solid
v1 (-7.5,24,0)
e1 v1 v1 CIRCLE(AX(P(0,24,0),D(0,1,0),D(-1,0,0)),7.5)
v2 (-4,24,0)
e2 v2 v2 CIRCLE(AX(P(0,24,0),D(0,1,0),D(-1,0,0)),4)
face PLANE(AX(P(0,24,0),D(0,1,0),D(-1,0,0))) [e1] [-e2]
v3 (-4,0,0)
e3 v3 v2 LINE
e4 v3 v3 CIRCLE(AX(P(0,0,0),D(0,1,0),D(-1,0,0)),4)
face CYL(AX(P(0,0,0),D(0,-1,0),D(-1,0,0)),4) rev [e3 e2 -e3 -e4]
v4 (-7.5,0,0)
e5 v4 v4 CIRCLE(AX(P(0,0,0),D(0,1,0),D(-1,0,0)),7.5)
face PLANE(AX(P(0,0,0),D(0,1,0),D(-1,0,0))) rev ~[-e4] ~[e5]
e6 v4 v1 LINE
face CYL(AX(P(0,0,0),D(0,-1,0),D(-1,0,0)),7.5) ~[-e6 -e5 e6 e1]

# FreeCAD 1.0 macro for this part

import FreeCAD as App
import Part
import Sketcher

V = App.Vector

doc = App.newDocument("Part")
body = doc.addObject("PartDesign::Body", "Body")

sketch1 = body.newObject("Sketcher::SketchObject", "Sketch")
sketch1.AttachmentSupport = (doc.getObject("XZ_Plane"), [""])
sketch1.MapMode = "FlatFace"
sketch1.addGeometry([
    Part.Circle(V(0, 0, 0), V(0, 0, 1), 7.5),
    Part.Circle(V(0, 0, 0), V(0, 0, 1), 4),
], False)
sketch1.addConstraint([
    Sketcher.Constraint("Coincident", 0, 3, -1, 1),
    Sketcher.Constraint("Coincident", 1, 3, -1, 1),
    Sketcher.Constraint("Diameter", 0, 15.0),
    Sketcher.Constraint("Diameter", 1, 8.0),
])
pad1 = body.newObject("PartDesign::Pad", "Pad")
pad1.Profile = sketch1
pad1.Length = 24
pad1.Reversed = True

doc.recompute()
